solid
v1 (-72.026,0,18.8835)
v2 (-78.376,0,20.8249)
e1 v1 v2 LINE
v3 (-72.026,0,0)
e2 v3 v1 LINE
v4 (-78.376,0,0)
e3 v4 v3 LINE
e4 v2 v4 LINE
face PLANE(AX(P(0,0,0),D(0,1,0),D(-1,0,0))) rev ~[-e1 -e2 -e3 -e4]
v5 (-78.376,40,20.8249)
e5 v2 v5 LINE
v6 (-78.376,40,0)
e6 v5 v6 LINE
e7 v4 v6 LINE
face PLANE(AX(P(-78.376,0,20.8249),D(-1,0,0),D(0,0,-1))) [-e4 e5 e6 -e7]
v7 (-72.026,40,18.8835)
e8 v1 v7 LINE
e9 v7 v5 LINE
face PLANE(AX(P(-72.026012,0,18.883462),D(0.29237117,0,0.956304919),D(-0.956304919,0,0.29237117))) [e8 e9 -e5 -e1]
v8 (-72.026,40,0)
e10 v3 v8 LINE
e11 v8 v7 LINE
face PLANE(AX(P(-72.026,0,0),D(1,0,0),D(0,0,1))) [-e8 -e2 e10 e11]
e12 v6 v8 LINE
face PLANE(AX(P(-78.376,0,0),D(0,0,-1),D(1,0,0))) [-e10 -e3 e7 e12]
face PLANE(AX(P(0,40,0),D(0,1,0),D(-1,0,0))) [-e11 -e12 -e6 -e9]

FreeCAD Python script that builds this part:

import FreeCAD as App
import Part
import Sketcher
Q = App.Units.Quantity


def add_polygon(sketch, points):
    """Adds a closed chain of lines whose ends are joined by coincident constraints."""
    first, n = sketch.GeometryCount, len(points)
    for a, b in zip(points, points[1:] + points[:1]):
        sketch.addGeometry(Part.LineSegment(App.Vector(*a, 0), App.Vector(*b, 0)), False)
    for i in range(n):
        sketch.addConstraint(Sketcher.Constraint("Coincident", first + i, 2, first + (i + 1) % n, 1))

doc = App.newDocument("Part")
body = doc.addObject("PartDesign::Body", "Body")

sketch1 = body.newObject("Sketcher::SketchObject", "Sketch")
sketch1.AttachmentSupport = (doc.getObject("XZ_Plane"), [""])
sketch1.MapMode = "FlatFace"
add_polygon(sketch1, [(-78, 0), (-78, 21), (-72, 19), (-72, 0)])
sketch1.addConstraint([
    Sketcher.Constraint("Vertical", 0),
    Sketcher.Constraint("Vertical", 2),
    Sketcher.Constraint("Horizontal", 3),
    Sketcher.Constraint("PointOnObject", 2, 2, -1),
    Sketcher.Constraint("Angle", 1, Q("-17 deg")),
    Sketcher.Constraint("DistanceX", 3, 2, 3, 1, Q("0.25 in")),
    Sketcher.Constraint("DistanceX", 0, 2, -1, 1, 78.376),
    Sketcher.Constraint("DistanceY", 0, 1, 0, 2, 20.825),
])
pad1 = body.newObject("PartDesign::Pad", "Pad")
pad1.Profile = sketch1
pad1.Length = Q("1.5748031 in")
pad1.Reversed = True

doc.recompute()
